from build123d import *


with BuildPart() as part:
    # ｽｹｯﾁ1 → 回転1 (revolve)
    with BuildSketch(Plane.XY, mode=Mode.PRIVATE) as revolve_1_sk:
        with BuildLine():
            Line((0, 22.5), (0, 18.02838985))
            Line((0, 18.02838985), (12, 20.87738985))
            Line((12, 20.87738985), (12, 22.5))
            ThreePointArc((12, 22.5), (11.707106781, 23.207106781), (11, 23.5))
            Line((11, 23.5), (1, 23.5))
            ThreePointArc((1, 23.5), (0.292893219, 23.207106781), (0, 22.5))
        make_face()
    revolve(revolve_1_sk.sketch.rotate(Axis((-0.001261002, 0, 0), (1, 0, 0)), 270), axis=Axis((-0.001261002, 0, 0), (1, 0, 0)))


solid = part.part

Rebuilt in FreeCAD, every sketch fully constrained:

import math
import FreeCAD as App
import Part
import Sketcher
from FreeCAD import Vector
Q = App.Units.Quantity

doc = App.newDocument("Part")
body = doc.addObject("PartDesign::Body", "Body")

# Sketch on XY plane
sketch1 = doc.addObject("Sketcher::SketchObject", "Sketch")
body.addObject(sketch1)
sketch1.AttachmentSupport = (doc.XY_Plane, [""])
sketch1.MapMode = "FlatFace"
sketch1.addGeometry([
    Part.LineSegment(Vector(0, 22.5, 0), Vector(0, 18, 0)),  # 0
    Part.LineSegment(Vector(0, 18, 0), Vector(12, 20.9, 0)),  # 1
    Part.LineSegment(Vector(12, 20.9, 0), Vector(12, 22.5, 0)),  # 2
    Part.ArcOfCircle(Part.Circle(Vector(11, 22.5, 0), Vector(0, 0, 1), 1), math.radians(0), math.radians(90)),  # 3
    Part.LineSegment(Vector(11, 23.5, 0), Vector(1, 23.5, 0)),  # 4
    Part.ArcOfCircle(Part.Circle(Vector(1, 22.5, 0), Vector(0, 0, 1), 1), math.radians(90), math.radians(180)),  # 5
], False)
sketch1.addConstraint([
    Sketcher.Constraint("Coincident", 0, 2, 1, 1),
    Sketcher.Constraint("Coincident", 1, 2, 2, 1),
    Sketcher.Constraint("Tangent", 2, 2, 3, 1),
    Sketcher.Constraint("Tangent", 3, 2, 4, 1),
    Sketcher.Constraint("Tangent", 4, 2, 5, 1),
    Sketcher.Constraint("Tangent", 5, 2, 0, 1),
    Sketcher.Constraint("Vertical", 0),
    Sketcher.Constraint("Vertical", 2),
    Sketcher.Constraint("Horizontal", 4),
    Sketcher.Constraint("Equal", 3, 5),
    Sketcher.Constraint("PointOnObject", 0, 2, -2),
    Sketcher.Constraint("Radius", 3, Q("1 mm")),
    Sketcher.Constraint("DistanceX", 4, 2, 4, 1, Q("10 mm")),
    Sketcher.Constraint("DistanceY", -1, 1, 3, 3, Q("22.5 mm")),
    Sketcher.Constraint("DistanceY", 0, 2, 1, 2, Q("2.849 mm")),
    Sketcher.Constraint("DistanceY", 0, 2, 0, 1, Q("4.47161 mm")),
])
revolution = doc.addObject("PartDesign::Revolution", "Revolution")
body.addObject(revolution)
revolution.Profile = sketch1
revolution.ReferenceAxis = (sketch1, ["H_Axis"])
revolution.Angle = 360

doc.recompute()
